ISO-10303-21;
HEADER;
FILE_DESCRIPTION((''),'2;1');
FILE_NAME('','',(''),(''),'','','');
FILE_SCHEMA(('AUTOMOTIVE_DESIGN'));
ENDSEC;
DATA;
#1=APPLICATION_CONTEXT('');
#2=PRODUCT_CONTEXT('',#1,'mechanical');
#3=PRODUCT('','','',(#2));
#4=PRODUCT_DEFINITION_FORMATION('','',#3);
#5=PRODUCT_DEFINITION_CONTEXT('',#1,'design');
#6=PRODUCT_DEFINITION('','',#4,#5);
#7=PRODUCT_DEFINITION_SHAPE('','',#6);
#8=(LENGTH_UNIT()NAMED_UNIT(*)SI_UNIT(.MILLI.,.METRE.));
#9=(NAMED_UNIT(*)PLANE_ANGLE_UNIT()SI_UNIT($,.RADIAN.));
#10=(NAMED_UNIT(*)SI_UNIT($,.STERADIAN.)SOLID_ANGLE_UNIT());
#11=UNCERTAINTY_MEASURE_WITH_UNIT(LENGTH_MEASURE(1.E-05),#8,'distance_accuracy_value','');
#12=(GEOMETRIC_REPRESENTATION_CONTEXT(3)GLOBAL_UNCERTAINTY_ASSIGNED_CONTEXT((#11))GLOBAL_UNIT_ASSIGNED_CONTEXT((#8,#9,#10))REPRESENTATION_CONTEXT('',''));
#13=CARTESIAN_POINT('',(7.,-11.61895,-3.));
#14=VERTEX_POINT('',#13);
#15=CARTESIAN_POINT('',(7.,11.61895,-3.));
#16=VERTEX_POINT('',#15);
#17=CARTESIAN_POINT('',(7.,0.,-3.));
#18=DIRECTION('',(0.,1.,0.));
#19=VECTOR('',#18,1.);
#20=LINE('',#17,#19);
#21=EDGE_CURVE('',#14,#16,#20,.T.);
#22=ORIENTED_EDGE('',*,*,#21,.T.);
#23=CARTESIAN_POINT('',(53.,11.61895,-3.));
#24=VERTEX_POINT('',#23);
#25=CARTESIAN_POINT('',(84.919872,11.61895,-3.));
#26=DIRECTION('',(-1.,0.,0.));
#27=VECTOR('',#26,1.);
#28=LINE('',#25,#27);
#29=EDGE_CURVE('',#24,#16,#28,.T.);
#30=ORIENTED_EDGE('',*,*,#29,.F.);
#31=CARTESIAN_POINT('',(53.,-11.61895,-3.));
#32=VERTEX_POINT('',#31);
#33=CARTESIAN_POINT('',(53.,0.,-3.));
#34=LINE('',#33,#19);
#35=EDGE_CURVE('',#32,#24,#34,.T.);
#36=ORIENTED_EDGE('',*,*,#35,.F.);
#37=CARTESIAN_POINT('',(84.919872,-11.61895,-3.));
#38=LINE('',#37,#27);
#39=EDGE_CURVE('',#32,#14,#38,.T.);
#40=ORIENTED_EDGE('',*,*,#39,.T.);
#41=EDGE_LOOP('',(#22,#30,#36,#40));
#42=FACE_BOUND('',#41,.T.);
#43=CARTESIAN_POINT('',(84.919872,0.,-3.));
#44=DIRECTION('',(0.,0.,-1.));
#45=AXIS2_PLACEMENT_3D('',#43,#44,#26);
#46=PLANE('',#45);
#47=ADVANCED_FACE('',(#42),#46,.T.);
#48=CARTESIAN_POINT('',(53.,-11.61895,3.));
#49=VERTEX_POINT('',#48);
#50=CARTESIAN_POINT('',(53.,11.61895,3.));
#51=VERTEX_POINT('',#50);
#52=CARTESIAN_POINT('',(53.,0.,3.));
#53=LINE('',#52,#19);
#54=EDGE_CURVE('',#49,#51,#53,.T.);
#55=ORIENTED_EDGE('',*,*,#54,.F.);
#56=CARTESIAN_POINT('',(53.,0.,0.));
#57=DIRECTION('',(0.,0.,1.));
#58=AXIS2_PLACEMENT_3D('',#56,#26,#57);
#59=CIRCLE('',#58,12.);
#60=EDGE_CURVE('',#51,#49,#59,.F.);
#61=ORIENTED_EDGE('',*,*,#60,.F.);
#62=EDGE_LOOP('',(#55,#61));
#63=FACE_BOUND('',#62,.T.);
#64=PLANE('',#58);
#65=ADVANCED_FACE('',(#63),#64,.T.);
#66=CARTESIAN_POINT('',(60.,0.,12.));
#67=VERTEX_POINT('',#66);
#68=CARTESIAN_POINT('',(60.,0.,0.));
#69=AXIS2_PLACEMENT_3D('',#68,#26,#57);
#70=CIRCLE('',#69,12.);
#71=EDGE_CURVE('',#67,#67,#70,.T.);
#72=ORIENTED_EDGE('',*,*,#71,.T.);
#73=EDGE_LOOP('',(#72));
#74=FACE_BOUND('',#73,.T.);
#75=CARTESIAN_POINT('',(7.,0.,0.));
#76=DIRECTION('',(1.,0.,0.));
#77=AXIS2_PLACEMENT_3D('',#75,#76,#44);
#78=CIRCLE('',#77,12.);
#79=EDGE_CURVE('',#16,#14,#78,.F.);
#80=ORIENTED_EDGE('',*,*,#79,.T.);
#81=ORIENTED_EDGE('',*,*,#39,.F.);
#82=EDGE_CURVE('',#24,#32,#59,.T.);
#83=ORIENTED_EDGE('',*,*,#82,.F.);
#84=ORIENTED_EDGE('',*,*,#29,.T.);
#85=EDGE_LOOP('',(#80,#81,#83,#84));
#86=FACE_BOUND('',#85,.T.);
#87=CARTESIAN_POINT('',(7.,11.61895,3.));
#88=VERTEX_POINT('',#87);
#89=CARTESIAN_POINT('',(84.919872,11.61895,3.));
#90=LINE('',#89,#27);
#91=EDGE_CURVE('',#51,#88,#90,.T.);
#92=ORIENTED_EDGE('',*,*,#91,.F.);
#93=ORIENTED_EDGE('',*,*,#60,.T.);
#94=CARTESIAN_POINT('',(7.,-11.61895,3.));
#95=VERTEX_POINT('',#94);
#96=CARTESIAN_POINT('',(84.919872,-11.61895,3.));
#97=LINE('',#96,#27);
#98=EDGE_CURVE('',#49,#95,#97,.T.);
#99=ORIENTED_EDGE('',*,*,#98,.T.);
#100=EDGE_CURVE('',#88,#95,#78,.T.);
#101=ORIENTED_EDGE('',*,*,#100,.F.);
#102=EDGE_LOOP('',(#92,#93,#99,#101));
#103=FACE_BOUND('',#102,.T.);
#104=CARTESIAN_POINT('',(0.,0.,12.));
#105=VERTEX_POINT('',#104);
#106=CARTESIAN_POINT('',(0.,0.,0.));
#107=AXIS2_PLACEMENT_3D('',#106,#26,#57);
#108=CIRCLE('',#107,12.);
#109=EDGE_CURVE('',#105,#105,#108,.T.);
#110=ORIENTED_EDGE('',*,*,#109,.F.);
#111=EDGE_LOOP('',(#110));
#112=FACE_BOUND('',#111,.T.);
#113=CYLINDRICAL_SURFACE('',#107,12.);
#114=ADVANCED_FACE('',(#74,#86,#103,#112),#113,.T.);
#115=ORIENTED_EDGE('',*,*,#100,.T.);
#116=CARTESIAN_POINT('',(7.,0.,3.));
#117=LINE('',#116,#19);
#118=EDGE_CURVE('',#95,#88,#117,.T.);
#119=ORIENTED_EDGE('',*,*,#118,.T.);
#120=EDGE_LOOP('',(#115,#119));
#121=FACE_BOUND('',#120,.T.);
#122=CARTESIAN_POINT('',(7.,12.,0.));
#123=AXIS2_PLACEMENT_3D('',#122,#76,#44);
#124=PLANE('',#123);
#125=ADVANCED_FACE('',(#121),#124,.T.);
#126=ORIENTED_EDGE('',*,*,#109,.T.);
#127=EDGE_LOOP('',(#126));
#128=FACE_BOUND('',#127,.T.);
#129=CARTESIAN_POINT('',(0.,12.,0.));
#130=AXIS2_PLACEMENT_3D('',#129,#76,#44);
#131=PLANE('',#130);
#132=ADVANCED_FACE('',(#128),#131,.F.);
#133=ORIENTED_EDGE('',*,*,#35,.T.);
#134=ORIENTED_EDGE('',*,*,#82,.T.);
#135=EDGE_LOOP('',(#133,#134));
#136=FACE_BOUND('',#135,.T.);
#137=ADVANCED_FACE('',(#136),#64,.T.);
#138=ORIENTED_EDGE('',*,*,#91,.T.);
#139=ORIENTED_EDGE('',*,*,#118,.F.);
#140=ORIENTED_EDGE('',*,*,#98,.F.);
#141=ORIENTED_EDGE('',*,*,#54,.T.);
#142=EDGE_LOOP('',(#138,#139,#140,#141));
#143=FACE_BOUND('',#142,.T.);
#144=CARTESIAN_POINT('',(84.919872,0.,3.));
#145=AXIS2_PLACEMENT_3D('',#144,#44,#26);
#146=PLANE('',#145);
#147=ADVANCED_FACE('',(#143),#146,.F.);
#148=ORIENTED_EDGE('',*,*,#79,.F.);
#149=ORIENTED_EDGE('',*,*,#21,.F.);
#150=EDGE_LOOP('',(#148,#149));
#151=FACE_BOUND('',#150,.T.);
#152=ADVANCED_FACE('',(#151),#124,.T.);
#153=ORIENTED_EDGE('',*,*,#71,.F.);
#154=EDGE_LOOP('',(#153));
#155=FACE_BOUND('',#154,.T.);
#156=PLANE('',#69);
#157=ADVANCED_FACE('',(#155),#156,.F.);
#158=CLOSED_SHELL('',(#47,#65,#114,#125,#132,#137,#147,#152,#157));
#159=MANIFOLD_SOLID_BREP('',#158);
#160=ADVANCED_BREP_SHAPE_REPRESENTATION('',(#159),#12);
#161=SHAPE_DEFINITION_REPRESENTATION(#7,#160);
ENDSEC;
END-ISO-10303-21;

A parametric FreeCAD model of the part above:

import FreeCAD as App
import Part
import Sketcher


def add_polygon(sketch, points):
    """Adds a closed chain of lines whose ends are joined by coincident constraints."""
    first, n = sketch.GeometryCount, len(points)
    for a, b in zip(points, points[1:] + points[:1]):
        sketch.addGeometry(Part.LineSegment(App.Vector(*a, 0), App.Vector(*b, 0)), False)
    for i in range(n):
        sketch.addConstraint(Sketcher.Constraint("Coincident", first + i, 2, first + (i + 1) % n, 1))

doc = App.newDocument("Part")
body = doc.addObject("PartDesign::Body", "Body")

# Sketch on XY plane
sketch1 = body.newObject("Sketcher::SketchObject", "Sketch")
sketch1.AttachmentSupport = (doc.getObject("XY_Plane"), [""])
sketch1.MapMode = "FlatFace"
add_polygon(sketch1, [(0, 12), (0, 0), (60, 0), (60, 12)])  # lines 0-3
sketch1.addConstraint(Sketcher.Constraint("Vertical", 0))
sketch1.addConstraint(Sketcher.Constraint("Horizontal", 1))
sketch1.addConstraint(Sketcher.Constraint("Vertical", 2))
sketch1.addConstraint(Sketcher.Constraint("Horizontal", 3))
sketch1.addConstraint(Sketcher.Constraint("Coincident", 0, 2, -1, 1))
sketch1.addConstraint(Sketcher.Constraint("DistanceX", 1, 1, 1, 2, 60.0))
sketch1.addConstraint(Sketcher.Constraint("DistanceY", 0, 2, 0, 1, 12.0))
revolution = body.newObject("PartDesign::Revolution", "Revolution")
revolution.Profile = sketch1
revolution.ReferenceAxis = (sketch1, ["H_Axis"])
revolution.Angle = 360

# Sketch on YZ plane
sketch2 = body.newObject("Sketcher::SketchObject", "Sketch001")
sketch2.AttachmentSupport = (doc.getObject("YZ_Plane"), [""])
sketch2.MapMode = "FlatFace"
sketch2.AttachmentOffset = App.Placement(App.Vector(0, 0, 30), App.Rotation())
add_polygon(sketch2, [(77.578035, 3), (-77.578035, 3), (-77.578035, 134.91817), (77.578035, 134.91817)])  # lines 0-3
sketch2.addConstraint(Sketcher.Constraint("Horizontal", 0))
sketch2.addConstraint(Sketcher.Constraint("Vertical", 1))
sketch2.addConstraint(Sketcher.Constraint("Horizontal", 2))
sketch2.addConstraint(Sketcher.Constraint("Vertical", 3))
sketch2.addConstraint(Sketcher.Constraint("DistanceY", -1, 1, 0, 2, 3.0))
sketch2.addConstraint(Sketcher.Constraint("DistanceX", 0, 2, 0, 1, 155.15607))
sketch2.addConstraint(Sketcher.Constraint("DistanceY", 1, 1, 1, 2, 131.91817))
sketch2.addConstraint(Sketcher.Constraint("DistanceX", 0, 2, -1, 1, 77.578035))
pocket1 = body.newObject("PartDesign::Pocket", "Pocket")
pocket1.Profile = sketch2
pocket1.Length = 46
pocket1.Midplane = True
doc.recompute()

mirrored = body.newObject("PartDesign::Mirrored", "Mirrored")
mirrored.Originals = [pocket1]
mirrored.MirrorPlane = (doc.getObject("XY_Plane"), [""])
body.Tip = mirrored

doc.recompute()
